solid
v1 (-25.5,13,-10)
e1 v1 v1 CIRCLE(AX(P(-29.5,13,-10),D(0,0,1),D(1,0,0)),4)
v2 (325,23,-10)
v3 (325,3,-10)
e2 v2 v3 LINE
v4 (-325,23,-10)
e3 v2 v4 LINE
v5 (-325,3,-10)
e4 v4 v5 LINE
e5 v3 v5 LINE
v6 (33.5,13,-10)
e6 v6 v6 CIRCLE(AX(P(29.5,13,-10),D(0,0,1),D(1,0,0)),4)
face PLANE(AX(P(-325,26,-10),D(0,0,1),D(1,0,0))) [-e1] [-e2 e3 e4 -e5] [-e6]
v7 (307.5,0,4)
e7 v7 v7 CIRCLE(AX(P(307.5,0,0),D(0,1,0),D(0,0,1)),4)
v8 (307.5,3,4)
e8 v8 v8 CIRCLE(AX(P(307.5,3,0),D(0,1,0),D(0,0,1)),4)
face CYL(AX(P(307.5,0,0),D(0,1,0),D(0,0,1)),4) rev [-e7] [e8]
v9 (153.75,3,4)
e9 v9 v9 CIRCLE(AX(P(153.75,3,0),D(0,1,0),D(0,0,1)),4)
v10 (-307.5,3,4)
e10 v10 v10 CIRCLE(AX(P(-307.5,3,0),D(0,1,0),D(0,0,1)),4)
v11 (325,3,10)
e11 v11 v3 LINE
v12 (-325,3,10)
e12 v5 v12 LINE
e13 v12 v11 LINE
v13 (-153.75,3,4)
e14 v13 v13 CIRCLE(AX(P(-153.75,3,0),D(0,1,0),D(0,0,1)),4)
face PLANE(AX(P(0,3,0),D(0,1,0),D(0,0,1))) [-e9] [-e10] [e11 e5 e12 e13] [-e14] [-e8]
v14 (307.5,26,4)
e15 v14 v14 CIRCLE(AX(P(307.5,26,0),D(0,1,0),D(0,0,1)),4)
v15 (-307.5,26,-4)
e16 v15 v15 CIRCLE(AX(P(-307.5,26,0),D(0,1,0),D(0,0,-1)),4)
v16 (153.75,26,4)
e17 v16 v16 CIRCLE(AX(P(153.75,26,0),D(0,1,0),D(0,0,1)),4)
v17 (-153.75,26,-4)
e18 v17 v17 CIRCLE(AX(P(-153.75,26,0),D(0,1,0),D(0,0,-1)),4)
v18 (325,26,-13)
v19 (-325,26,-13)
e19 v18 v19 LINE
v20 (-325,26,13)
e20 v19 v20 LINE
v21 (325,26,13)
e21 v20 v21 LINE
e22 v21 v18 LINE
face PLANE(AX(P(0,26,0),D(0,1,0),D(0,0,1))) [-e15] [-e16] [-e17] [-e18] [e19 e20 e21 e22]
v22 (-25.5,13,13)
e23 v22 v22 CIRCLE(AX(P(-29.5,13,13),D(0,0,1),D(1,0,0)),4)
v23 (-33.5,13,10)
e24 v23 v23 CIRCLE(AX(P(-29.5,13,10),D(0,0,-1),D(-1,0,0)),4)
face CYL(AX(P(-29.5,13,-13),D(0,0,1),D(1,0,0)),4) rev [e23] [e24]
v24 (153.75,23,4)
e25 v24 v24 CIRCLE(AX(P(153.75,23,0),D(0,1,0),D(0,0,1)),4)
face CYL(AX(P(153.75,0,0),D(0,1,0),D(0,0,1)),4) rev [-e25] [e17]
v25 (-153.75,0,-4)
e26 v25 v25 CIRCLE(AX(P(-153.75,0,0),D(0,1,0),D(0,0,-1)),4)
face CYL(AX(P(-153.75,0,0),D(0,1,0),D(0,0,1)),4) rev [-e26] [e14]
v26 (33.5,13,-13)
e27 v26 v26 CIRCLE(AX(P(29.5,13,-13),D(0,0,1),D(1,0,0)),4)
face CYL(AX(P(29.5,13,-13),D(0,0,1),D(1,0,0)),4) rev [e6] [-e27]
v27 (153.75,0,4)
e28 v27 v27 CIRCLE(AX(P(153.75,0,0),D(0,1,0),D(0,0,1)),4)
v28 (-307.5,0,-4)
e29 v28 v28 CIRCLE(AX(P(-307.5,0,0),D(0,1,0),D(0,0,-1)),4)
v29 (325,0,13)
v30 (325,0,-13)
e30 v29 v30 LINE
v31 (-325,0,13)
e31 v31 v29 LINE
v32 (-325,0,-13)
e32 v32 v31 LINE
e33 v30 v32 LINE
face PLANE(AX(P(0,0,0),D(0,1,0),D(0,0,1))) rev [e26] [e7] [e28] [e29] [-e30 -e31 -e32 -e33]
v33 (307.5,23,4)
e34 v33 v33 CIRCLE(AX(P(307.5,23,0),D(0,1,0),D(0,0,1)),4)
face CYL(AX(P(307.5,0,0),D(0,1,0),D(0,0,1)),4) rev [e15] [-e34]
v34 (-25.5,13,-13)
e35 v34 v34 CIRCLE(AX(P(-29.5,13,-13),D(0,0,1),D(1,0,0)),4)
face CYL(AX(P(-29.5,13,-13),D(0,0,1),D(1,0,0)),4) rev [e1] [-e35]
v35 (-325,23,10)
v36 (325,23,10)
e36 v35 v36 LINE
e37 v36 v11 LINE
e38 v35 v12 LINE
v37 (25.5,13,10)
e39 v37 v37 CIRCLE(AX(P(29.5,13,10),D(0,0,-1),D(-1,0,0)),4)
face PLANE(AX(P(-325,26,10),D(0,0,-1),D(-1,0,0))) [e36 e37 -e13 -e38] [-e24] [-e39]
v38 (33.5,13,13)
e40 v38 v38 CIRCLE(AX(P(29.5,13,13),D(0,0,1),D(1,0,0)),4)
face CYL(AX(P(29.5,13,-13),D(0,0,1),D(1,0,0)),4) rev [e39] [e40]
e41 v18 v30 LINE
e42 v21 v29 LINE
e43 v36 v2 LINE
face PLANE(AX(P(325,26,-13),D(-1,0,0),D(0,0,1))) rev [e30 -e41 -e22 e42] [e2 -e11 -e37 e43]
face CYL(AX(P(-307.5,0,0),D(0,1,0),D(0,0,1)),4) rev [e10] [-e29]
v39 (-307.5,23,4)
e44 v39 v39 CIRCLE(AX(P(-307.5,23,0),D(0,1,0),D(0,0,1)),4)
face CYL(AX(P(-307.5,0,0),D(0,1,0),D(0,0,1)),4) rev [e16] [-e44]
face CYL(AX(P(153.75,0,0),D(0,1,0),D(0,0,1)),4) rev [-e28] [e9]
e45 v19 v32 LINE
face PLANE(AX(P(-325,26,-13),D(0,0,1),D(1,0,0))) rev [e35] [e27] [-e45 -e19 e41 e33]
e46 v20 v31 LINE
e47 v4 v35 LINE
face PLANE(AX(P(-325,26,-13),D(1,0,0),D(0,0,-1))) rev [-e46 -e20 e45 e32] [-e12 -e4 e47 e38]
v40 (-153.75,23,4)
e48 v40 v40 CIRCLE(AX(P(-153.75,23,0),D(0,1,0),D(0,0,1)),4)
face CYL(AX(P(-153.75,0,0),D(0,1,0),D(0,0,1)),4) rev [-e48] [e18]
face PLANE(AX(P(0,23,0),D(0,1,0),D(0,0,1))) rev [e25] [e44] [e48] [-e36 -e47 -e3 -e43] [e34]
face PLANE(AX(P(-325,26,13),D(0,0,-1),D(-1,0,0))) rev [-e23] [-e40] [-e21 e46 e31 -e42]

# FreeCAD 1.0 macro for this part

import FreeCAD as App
import Part
import Sketcher
Q = App.Units.Quantity


def faces_at(feature, points):
    """Names of the faces that lie closest to the given points."""
    faces = feature.Shape.Faces
    near = lambda p: min(range(len(faces)), key=lambda i: faces[i].distToShape(Part.Vertex(*p))[0])
    return sorted({f"Face{near(p) + 1}" for p in points})

doc = App.newDocument("Part")
body = doc.addObject("PartDesign::Body", "Body")

# Sketch on XZ plane
sketch1 = doc.addObject("Sketcher::SketchObject", "Sketch")
body.addObject(sketch1)
sketch1.AttachmentSupport = (doc.XZ_Plane, [""])
sketch1.MapMode = "FlatFace"
sketch1.addGeometry(Part.LineSegment(App.Vector(-325, -13, 0), App.Vector(-325, 13, 0)), False)
sketch1.addGeometry(Part.LineSegment(App.Vector(-325, 13, 0), App.Vector(325, 13, 0)), False)
sketch1.addGeometry(Part.LineSegment(App.Vector(325, 13, 0), App.Vector(325, -13, 0)), False)
sketch1.addGeometry(Part.LineSegment(App.Vector(325, -13, 0), App.Vector(-325, -13, 0)), False)
sketch1.addConstraint(Sketcher.Constraint("Coincident", 0, 2, 1, 1))
sketch1.addConstraint(Sketcher.Constraint("Coincident", 1, 2, 2, 1))
sketch1.addConstraint(Sketcher.Constraint("Coincident", 2, 2, 3, 1))
sketch1.addConstraint(Sketcher.Constraint("Coincident", 3, 2, 0, 1))
sketch1.addConstraint(Sketcher.Constraint("Vertical", 0))
sketch1.addConstraint(Sketcher.Constraint("Horizontal", 1))
sketch1.addConstraint(Sketcher.Constraint("Vertical", 2))
sketch1.addConstraint(Sketcher.Constraint("Horizontal", 3))
sketch1.addConstraint(Sketcher.Constraint("Symmetric", 0, 2, 2, 2, -1, 1))
sketch1.addConstraint(Sketcher.Constraint("DistanceX", 1, 1, 1, 2, Q("650 mm")))
sketch1.addConstraint(Sketcher.Constraint("DistanceY", 0, 1, 0, 2, Q("26 mm")))
pad1 = doc.addObject("PartDesign::Pad", "Pad")
body.addObject(pad1)
pad1.Profile = sketch1
pad1.Length = 26
pad1.Reversed = True
doc.recompute()

thickness = doc.addObject("PartDesign::Thickness", "Thickness")
body.addObject(thickness)
thickness.Base = (pad1, faces_at(pad1, [(-325, 13, 0), (325, 13, 0)]))
thickness.Value = 3
thickness.Reversed = True
thickness.Join = "Intersection"

# Sketch on XZ plane
sketch2 = doc.addObject("Sketcher::SketchObject", "Sketch001")
body.addObject(sketch2)
sketch2.AttachmentSupport = (doc.XZ_Plane, [""])
sketch2.MapMode = "FlatFace"
sketch2.AttachmentOffset = App.Placement(App.Vector(0, 0, -26), App.Rotation())
sketch2.addGeometry(Part.Circle(App.Vector(307.5, 0, 0), App.Vector(0, 0, 1), 4), False)
sketch2.addGeometry(Part.Circle(App.Vector(-307.5, 0, 0), App.Vector(0, 0, 1), 4), False)
sketch2.addGeometry(Part.Circle(App.Vector(153.8, 0, 0), App.Vector(0, 0, 1), 4), False)
sketch2.addGeometry(Part.Circle(App.Vector(-153.8, 0, 0), App.Vector(0, 0, 1), 4), False)
sketch2.addConstraint(Sketcher.Constraint("Equal", 0, 1))
sketch2.addConstraint(Sketcher.Constraint("Equal", 1, 2))
sketch2.addConstraint(Sketcher.Constraint("Equal", 2, 3))
sketch2.addConstraint(Sketcher.Constraint("Symmetric", 0, 3, 1, 3, -1, 1))
sketch2.addConstraint(Sketcher.Constraint("Symmetric", 2, 3, 3, 3, -1, 1))
sketch2.addConstraint(Sketcher.Constraint("PointOnObject", 0, 3, -1))
sketch2.addConstraint(Sketcher.Constraint("PointOnObject", 2, 3, -1))
sketch2.addConstraint(Sketcher.Constraint("Diameter", 0, Q("8 mm")))
sketch2.addConstraint(Sketcher.Constraint("DistanceX", 1, 3, 0, 3, Q("615 mm")))
sketch2.addConstraint(Sketcher.Constraint("DistanceX", 3, 3, 2, 3, Q("307.5 mm")))
pocket1 = doc.addObject("PartDesign::Pocket", "Pocket")
body.addObject(pocket1)
pocket1.Profile = sketch2
pocket1.Length = 26
pocket1.Reversed = True

# Sketch on XY plane
sketch3 = doc.addObject("Sketcher::SketchObject", "Sketch002")
body.addObject(sketch3)
sketch3.AttachmentSupport = (doc.XY_Plane, [""])
sketch3.MapMode = "FlatFace"
sketch3.AttachmentOffset = App.Placement(App.Vector(0, 0, 13), App.Rotation())
sketch3.addGeometry(Part.Circle(App.Vector(-29.5, 13, 0), App.Vector(0, 0, 1), 4), False)
sketch3.addGeometry(Part.Circle(App.Vector(29.5, 13, 0), App.Vector(0, 0, 1), 4), False)
sketch3.addConstraint(Sketcher.Constraint("Equal", 0, 1))
sketch3.addConstraint(Sketcher.Constraint("Symmetric", 0, 3, 1, 3, -2))
sketch3.addConstraint(Sketcher.Constraint("Diameter", 0, Q("8 mm")))
sketch3.addConstraint(Sketcher.Constraint("DistanceY", -1, 1, 0, 3, Q("13 mm")))
sketch3.addConstraint(Sketcher.Constraint("DistanceX", 0, 3, 1, 3, Q("59 mm")))
pocket2 = doc.addObject("PartDesign::Pocket", "Pocket001")
body.addObject(pocket2)
pocket2.Profile = sketch3
pocket2.Type = "ThroughAll"

doc.recompute()
